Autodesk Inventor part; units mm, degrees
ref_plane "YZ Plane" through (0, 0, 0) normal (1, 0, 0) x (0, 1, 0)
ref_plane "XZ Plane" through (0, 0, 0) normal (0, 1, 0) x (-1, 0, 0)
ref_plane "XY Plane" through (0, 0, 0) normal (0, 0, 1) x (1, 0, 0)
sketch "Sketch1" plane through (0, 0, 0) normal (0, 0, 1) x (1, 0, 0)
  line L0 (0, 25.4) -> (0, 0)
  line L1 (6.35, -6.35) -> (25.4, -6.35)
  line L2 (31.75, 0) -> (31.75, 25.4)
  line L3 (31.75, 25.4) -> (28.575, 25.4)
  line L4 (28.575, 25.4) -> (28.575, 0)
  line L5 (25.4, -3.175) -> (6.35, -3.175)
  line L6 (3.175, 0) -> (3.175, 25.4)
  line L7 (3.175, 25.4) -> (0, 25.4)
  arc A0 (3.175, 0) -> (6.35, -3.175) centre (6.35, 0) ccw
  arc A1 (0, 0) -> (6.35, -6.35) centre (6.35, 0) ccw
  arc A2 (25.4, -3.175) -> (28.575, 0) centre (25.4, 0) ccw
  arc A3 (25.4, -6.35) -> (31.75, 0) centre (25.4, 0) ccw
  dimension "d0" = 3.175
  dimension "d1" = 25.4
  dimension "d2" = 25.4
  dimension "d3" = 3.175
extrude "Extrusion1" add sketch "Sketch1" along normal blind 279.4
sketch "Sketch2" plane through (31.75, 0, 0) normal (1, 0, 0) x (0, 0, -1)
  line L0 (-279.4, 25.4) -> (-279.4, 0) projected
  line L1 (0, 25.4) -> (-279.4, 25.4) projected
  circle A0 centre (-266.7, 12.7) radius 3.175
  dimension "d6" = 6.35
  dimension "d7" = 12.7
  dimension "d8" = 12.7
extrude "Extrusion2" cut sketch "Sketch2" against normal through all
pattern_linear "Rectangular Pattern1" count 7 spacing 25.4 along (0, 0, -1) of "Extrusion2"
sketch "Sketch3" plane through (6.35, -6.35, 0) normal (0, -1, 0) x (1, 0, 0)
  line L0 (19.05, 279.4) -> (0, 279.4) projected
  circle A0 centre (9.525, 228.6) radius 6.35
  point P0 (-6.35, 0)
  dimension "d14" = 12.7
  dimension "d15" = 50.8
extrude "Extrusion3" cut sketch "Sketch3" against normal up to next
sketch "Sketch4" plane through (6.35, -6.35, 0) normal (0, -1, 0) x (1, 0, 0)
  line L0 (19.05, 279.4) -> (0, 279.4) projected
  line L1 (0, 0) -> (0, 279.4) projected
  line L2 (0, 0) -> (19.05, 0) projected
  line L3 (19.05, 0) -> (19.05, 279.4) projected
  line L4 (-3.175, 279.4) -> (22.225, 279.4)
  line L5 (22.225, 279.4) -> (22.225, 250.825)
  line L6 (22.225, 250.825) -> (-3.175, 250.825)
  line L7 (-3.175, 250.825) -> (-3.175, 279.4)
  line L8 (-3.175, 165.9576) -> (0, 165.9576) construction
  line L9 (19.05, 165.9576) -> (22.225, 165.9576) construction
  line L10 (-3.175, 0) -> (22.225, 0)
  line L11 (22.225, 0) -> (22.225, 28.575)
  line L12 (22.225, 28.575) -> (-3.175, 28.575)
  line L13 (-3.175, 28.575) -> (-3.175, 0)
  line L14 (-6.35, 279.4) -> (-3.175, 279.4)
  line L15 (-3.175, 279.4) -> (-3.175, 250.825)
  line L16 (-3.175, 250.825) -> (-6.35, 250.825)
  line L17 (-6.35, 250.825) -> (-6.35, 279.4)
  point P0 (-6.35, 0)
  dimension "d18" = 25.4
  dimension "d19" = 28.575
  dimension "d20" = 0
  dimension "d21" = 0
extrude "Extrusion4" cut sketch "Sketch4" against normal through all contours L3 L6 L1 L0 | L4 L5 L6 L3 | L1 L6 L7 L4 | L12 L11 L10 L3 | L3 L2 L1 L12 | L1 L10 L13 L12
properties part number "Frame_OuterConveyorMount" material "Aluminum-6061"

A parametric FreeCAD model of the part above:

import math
import FreeCAD as App
import Part
import Sketcher

V = App.Vector
Q = App.Units.Quantity

doc = App.newDocument("Part")
params = doc.addObject("Spreadsheet::Sheet", "Params")
for row, (alias, value) in enumerate([
    ("sketch1_height", "1 in"),
    ("sketch1_radius", "0.125 in"),
    ("pad1_length", "11 in"),
    ("sketch2_diameter", "0.25 in"),
    ("linearpattern_pitch", "1 in"),
    ("sketch3_diameter", "0.5 in"),
    ("sketch4_width", "1 in"),
    ("sketch4_height", "1.125 in"),
], start=1):
    params.set(f"A{row}", alias)
    params.set(f"B{row}", "=" + value)
    params.setAlias(f"B{row}", alias)

body = doc.addObject("PartDesign::Body", "Body")

sketch1 = body.newObject("Sketcher::SketchObject", "Sketch")
sketch1.AttachmentSupport = (doc.getObject("XY_Plane"), [""])
sketch1.MapMode = "FlatFace"
sketch1.addGeometry([
    Part.LineSegment(V(3.2, 25.4, 0), V(0, 25.4, 0)),
    Part.LineSegment(V(0, 25.4, 0), V(0, 0, 0)),
    Part.ArcOfCircle(Part.Circle(V(6.3, 0, 0), V(0, 0, 1), 6.3), math.radians(180), math.radians(270)),
    Part.LineSegment(V(6.3, -6.3, 0), V(25.4, -6.3, 0)),
    Part.ArcOfCircle(Part.Circle(V(25.4, 0, 0), V(0, 0, 1), 6.3), math.radians(-90), math.radians(0)),
    Part.LineSegment(V(31.8, 0, 0), V(31.8, 25.4, 0)),
    Part.LineSegment(V(31.8, 25.4, 0), V(28.6, 25.4, 0)),
    Part.LineSegment(V(28.6, 25.4, 0), V(28.6, 0, 0)),
    Part.ArcOfCircle(Part.Circle(V(25.4, 0, 0), V(0, 0, 1), 3.2), math.radians(-90), math.radians(0)),
    Part.LineSegment(V(25.4, -3.2, 0), V(6.3, -3.2, 0)),
    Part.ArcOfCircle(Part.Circle(V(6.3, 0, 0), V(0, 0, 1), 3.2), math.radians(180), math.radians(270)),
    Part.LineSegment(V(3.2, 0, 0), V(3.2, 25.4, 0)),
], False)
sketch1.addConstraint([
    Sketcher.Constraint("Coincident", 0, 2, 1, 1),
    Sketcher.Constraint("Tangent", 1, 2, 2, 1),
    Sketcher.Constraint("Tangent", 2, 2, 3, 1),
    Sketcher.Constraint("Tangent", 3, 2, 4, 1),
    Sketcher.Constraint("Tangent", 4, 2, 5, 1),
    Sketcher.Constraint("Coincident", 5, 2, 6, 1),
    Sketcher.Constraint("Coincident", 6, 2, 7, 1),
    Sketcher.Constraint("Tangent", 7, 2, 8, 2),
    Sketcher.Constraint("Tangent", 8, 1, 9, 1),
    Sketcher.Constraint("Tangent", 9, 2, 10, 2),
    Sketcher.Constraint("Tangent", 10, 1, 11, 1),
    Sketcher.Constraint("Coincident", 11, 2, 0, 1),
    Sketcher.Constraint("Horizontal", 0),
    Sketcher.Constraint("Vertical", 1),
    Sketcher.Constraint("Horizontal", 3),
    Sketcher.Constraint("Vertical", 5),
    Sketcher.Constraint("Horizontal", 6),
    Sketcher.Constraint("Vertical", 7),
    Sketcher.Constraint("Horizontal", 9),
    Sketcher.Constraint("Vertical", 11),
    Sketcher.Constraint("Coincident", 1, 2, -1, 1),
    Sketcher.Constraint("Coincident", 8, 3, 4, 3),
    Sketcher.Constraint("Coincident", 10, 3, 2, 3),
    Sketcher.Constraint("Equal", 2, 4),
    Sketcher.Constraint("Horizontal", 0, 2, 5, 2),
    Sketcher.Constraint("DistanceY", 1, 2, 1, 1, Q("1 in")),
    Sketcher.Constraint("DistanceX", -1, 1, 4, 3, Q("1 in")),
    Sketcher.Constraint("Radius", 8, Q("0.125 in")),
    Sketcher.Constraint("DistanceX", 11, 2, 6, 2, Q("1 in")),
])
sketch1.setExpression("Constraints[25]", "Params.sketch1_height")
sketch1.setExpression("Constraints[27]", "Params.sketch1_radius")
pad1 = body.newObject("PartDesign::Pad", "Pad")
pad1.Profile = sketch1
pad1.setExpression("Length", "Params.pad1_length")

sketch2 = body.newObject("Sketcher::SketchObject", "Sketch001")
sketch2.AttachmentSupport = (doc.getObject("YZ_Plane"), [""])
sketch2.MapMode = "FlatFace"
sketch2.AttachmentOffset = App.Placement(V(0, 0, 1.25 * 25.4), App.Rotation())
sketch2.addGeometry(Part.Circle(V(12.7, 266.7, 0), V(0, 0, 1), 3.2), False)
sketch2.addConstraint([
    Sketcher.Constraint("Diameter", 0, Q("0.25 in")),
    Sketcher.Constraint("DistanceX", -1, 1, 0, 3, Q("0.5 in")),
    Sketcher.Constraint("DistanceY", -1, 1, 0, 3, Q("10.5 in")),
])
sketch2.setExpression("Constraints[0]", "Params.sketch2_diameter")
pocket1 = body.newObject("PartDesign::Pocket", "Pocket")
pocket1.Profile = sketch2
pocket1.Type = "ThroughAll"
doc.recompute()

linearpattern = body.newObject("PartDesign::LinearPattern", "LinearPattern")
linearpattern.Originals = [pocket1]
linearpattern.Direction = (doc.getObject("Z_Axis"), [""])
linearpattern.Mode = "offset"
linearpattern.setExpression("Offset", "Params.linearpattern_pitch")
linearpattern.Occurrences = 7
linearpattern.Reversed = True
body.Tip = linearpattern

sketch3 = body.newObject("Sketcher::SketchObject", "Sketch002")
sketch3.AttachmentSupport = (doc.getObject("XZ_Plane"), [""])
sketch3.MapMode = "FlatFace"
sketch3.AttachmentOffset = App.Placement(V(0, 0, 0.25 * 25.4), App.Rotation())
sketch3.addGeometry(Part.Circle(V(16, 229, 0), V(0, 0, 1), 6), False)
sketch3.addConstraint([
    Sketcher.Constraint("Diameter", 0, Q("0.5 in")),
    Sketcher.Constraint("DistanceY", -1, 1, 0, 3, Q("9 in")),
    Sketcher.Constraint("DistanceX", -1, 1, 0, 3, Q("0.625 in")),
])
sketch3.setExpression("Constraints[0]", "Params.sketch3_diameter")
pocket2 = body.newObject("PartDesign::Pocket", "Pocket001")
pocket2.Profile = sketch3
pocket2.Type = "UpToFirst"

sketch4 = body.newObject("Sketcher::SketchObject", "Sketch003")
sketch4.AttachmentSupport = (doc.getObject("XZ_Plane"), [""])
sketch4.MapMode = "FlatFace"
sketch4.AttachmentOffset = App.Placement(V(0, 0, 0.25 * 25.4), App.Rotation())
sketch4.addGeometry([
    Part.LineSegment(V(29, 251, 0), V(29, 279, 0)),
    Part.LineSegment(V(29, 279, 0), V(3, 279, 0)),
    Part.LineSegment(V(3, 279, 0), V(3, 251, 0)),
    Part.LineSegment(V(3, 251, 0), V(29, 251, 0)),
    Part.LineSegment(V(29, 29, 0), V(3, 29, 0)),
    Part.LineSegment(V(3, 29, 0), V(3, 0, 0)),
    Part.LineSegment(V(3, 0, 0), V(29, 0, 0)),
    Part.LineSegment(V(29, 0, 0), V(29, 29, 0)),
], False)
sketch4.addConstraint([
    Sketcher.Constraint("Coincident", 0, 2, 1, 1),
    Sketcher.Constraint("Coincident", 1, 2, 2, 1),
    Sketcher.Constraint("Coincident", 2, 2, 3, 1),
    Sketcher.Constraint("Coincident", 3, 2, 0, 1),
    Sketcher.Constraint("Coincident", 4, 2, 5, 1),
    Sketcher.Constraint("Coincident", 5, 2, 6, 1),
    Sketcher.Constraint("Coincident", 6, 2, 7, 1),
    Sketcher.Constraint("Coincident", 7, 2, 4, 1),
    Sketcher.Constraint("Vertical", 0),
    Sketcher.Constraint("Horizontal", 1),
    Sketcher.Constraint("Vertical", 2),
    Sketcher.Constraint("Horizontal", 3),
    Sketcher.Constraint("Horizontal", 4),
    Sketcher.Constraint("Vertical", 5),
    Sketcher.Constraint("Horizontal", 6),
    Sketcher.Constraint("Vertical", 7),
    Sketcher.Constraint("PointOnObject", 5, 2, -1),
    Sketcher.Constraint("Vertical", 2, 2, 4, 2),
    Sketcher.Constraint("Vertical", 3, 2, 6, 2),
    Sketcher.Constraint("Equal", 2, 5),
    Sketcher.Constraint("DistanceX", 1, 2, 1, 1, Q("1 in")),
    Sketcher.Constraint("DistanceY", 0, 1, 0, 2, Q("1.125 in")),
    Sketcher.Constraint("DistanceX", -1, 1, 0, 2, Q("1.125 in")),
    Sketcher.Constraint("DistanceY", -1, 1, 0, 2, Q("11 in")),
])
sketch4.setExpression("Constraints[20]", "Params.sketch4_width")
sketch4.setExpression("Constraints[21]", "Params.sketch4_height")
pocket3 = body.newObject("PartDesign::Pocket", "Pocket002")
pocket3.Profile = sketch4
pocket3.Type = "ThroughAll"

doc.recompute()
